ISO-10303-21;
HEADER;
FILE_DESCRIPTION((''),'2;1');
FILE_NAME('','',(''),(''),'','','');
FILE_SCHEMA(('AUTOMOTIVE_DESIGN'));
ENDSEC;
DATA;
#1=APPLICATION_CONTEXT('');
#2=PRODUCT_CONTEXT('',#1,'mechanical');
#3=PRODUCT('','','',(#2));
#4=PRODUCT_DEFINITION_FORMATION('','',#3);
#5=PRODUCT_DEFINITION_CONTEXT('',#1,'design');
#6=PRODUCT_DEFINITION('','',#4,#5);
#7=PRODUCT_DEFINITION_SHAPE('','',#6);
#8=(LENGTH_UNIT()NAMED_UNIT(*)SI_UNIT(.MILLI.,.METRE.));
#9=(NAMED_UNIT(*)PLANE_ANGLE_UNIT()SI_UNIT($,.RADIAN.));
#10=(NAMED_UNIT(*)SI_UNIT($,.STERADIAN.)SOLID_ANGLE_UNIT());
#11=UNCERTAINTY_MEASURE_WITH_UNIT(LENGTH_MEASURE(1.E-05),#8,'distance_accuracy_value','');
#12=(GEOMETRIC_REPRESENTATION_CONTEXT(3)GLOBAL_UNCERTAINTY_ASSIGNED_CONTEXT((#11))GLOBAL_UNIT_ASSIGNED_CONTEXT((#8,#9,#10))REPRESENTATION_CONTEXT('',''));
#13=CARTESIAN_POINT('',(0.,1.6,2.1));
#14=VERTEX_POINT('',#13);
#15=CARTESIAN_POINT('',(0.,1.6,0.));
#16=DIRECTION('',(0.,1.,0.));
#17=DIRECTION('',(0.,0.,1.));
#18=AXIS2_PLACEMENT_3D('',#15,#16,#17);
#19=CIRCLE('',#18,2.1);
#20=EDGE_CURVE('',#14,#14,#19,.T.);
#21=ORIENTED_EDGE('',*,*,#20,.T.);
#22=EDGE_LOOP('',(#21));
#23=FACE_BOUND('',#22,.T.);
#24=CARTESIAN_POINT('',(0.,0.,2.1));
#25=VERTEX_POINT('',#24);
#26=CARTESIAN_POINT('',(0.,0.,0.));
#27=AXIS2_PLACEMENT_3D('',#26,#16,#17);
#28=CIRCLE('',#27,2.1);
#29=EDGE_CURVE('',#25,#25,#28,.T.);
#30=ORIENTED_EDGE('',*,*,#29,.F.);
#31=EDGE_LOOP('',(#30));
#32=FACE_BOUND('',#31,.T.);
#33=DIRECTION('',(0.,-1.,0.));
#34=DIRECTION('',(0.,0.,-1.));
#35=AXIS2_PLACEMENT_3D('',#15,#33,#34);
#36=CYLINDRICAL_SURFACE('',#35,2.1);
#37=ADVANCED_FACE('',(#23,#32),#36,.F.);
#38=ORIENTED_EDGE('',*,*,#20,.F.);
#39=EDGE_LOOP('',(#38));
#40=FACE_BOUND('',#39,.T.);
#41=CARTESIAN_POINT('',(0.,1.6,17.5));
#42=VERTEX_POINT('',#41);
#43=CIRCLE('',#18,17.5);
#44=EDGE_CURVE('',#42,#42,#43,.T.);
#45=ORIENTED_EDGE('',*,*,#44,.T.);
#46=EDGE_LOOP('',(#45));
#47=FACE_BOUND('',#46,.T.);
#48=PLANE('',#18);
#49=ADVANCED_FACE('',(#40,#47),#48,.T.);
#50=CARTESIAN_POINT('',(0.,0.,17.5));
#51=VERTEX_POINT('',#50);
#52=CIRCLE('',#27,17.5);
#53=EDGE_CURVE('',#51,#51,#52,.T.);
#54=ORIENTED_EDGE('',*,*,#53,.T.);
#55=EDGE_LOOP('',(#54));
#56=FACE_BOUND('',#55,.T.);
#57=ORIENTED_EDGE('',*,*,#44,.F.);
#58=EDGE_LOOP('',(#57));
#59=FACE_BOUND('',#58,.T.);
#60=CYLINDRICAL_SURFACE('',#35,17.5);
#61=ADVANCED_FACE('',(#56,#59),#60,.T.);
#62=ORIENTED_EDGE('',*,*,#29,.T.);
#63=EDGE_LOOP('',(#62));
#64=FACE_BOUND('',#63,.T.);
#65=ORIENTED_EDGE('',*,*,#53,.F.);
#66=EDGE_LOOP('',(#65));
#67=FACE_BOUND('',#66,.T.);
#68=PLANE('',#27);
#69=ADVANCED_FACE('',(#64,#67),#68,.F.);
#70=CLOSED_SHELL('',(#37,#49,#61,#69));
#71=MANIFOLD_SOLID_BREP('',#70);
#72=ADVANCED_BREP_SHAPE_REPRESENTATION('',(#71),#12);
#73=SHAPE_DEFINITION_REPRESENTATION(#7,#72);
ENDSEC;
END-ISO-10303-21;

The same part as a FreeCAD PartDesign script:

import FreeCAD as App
import Part
import Sketcher

V = App.Vector

doc = App.newDocument("Part")
body = doc.addObject("PartDesign::Body", "Body")

sketch1 = body.newObject("Sketcher::SketchObject", "Sketch")
sketch1.AttachmentSupport = (doc.getObject("XZ_Plane"), [""])
sketch1.MapMode = "FlatFace"
sketch1.addGeometry(Part.Circle(V(0, 0, 0), V(0, 0, 1), 17.5), False)
sketch1.addGeometry(Part.Circle(V(0, 0, 0), V(0, 0, 1), 2.1), False)
sketch1.addConstraint(Sketcher.Constraint("Coincident", 0, 3, -1, 1))
sketch1.addConstraint(Sketcher.Constraint("Coincident", 1, 3, -1, 1))
sketch1.addConstraint(Sketcher.Constraint("Diameter", 0, 35.0))
sketch1.addConstraint(Sketcher.Constraint("Diameter", 1, 4.2))
pad1 = body.newObject("PartDesign::Pad", "Pad")
pad1.Profile = sketch1
pad1.Length = 1.6
pad1.Reversed = True

doc.recompute()
